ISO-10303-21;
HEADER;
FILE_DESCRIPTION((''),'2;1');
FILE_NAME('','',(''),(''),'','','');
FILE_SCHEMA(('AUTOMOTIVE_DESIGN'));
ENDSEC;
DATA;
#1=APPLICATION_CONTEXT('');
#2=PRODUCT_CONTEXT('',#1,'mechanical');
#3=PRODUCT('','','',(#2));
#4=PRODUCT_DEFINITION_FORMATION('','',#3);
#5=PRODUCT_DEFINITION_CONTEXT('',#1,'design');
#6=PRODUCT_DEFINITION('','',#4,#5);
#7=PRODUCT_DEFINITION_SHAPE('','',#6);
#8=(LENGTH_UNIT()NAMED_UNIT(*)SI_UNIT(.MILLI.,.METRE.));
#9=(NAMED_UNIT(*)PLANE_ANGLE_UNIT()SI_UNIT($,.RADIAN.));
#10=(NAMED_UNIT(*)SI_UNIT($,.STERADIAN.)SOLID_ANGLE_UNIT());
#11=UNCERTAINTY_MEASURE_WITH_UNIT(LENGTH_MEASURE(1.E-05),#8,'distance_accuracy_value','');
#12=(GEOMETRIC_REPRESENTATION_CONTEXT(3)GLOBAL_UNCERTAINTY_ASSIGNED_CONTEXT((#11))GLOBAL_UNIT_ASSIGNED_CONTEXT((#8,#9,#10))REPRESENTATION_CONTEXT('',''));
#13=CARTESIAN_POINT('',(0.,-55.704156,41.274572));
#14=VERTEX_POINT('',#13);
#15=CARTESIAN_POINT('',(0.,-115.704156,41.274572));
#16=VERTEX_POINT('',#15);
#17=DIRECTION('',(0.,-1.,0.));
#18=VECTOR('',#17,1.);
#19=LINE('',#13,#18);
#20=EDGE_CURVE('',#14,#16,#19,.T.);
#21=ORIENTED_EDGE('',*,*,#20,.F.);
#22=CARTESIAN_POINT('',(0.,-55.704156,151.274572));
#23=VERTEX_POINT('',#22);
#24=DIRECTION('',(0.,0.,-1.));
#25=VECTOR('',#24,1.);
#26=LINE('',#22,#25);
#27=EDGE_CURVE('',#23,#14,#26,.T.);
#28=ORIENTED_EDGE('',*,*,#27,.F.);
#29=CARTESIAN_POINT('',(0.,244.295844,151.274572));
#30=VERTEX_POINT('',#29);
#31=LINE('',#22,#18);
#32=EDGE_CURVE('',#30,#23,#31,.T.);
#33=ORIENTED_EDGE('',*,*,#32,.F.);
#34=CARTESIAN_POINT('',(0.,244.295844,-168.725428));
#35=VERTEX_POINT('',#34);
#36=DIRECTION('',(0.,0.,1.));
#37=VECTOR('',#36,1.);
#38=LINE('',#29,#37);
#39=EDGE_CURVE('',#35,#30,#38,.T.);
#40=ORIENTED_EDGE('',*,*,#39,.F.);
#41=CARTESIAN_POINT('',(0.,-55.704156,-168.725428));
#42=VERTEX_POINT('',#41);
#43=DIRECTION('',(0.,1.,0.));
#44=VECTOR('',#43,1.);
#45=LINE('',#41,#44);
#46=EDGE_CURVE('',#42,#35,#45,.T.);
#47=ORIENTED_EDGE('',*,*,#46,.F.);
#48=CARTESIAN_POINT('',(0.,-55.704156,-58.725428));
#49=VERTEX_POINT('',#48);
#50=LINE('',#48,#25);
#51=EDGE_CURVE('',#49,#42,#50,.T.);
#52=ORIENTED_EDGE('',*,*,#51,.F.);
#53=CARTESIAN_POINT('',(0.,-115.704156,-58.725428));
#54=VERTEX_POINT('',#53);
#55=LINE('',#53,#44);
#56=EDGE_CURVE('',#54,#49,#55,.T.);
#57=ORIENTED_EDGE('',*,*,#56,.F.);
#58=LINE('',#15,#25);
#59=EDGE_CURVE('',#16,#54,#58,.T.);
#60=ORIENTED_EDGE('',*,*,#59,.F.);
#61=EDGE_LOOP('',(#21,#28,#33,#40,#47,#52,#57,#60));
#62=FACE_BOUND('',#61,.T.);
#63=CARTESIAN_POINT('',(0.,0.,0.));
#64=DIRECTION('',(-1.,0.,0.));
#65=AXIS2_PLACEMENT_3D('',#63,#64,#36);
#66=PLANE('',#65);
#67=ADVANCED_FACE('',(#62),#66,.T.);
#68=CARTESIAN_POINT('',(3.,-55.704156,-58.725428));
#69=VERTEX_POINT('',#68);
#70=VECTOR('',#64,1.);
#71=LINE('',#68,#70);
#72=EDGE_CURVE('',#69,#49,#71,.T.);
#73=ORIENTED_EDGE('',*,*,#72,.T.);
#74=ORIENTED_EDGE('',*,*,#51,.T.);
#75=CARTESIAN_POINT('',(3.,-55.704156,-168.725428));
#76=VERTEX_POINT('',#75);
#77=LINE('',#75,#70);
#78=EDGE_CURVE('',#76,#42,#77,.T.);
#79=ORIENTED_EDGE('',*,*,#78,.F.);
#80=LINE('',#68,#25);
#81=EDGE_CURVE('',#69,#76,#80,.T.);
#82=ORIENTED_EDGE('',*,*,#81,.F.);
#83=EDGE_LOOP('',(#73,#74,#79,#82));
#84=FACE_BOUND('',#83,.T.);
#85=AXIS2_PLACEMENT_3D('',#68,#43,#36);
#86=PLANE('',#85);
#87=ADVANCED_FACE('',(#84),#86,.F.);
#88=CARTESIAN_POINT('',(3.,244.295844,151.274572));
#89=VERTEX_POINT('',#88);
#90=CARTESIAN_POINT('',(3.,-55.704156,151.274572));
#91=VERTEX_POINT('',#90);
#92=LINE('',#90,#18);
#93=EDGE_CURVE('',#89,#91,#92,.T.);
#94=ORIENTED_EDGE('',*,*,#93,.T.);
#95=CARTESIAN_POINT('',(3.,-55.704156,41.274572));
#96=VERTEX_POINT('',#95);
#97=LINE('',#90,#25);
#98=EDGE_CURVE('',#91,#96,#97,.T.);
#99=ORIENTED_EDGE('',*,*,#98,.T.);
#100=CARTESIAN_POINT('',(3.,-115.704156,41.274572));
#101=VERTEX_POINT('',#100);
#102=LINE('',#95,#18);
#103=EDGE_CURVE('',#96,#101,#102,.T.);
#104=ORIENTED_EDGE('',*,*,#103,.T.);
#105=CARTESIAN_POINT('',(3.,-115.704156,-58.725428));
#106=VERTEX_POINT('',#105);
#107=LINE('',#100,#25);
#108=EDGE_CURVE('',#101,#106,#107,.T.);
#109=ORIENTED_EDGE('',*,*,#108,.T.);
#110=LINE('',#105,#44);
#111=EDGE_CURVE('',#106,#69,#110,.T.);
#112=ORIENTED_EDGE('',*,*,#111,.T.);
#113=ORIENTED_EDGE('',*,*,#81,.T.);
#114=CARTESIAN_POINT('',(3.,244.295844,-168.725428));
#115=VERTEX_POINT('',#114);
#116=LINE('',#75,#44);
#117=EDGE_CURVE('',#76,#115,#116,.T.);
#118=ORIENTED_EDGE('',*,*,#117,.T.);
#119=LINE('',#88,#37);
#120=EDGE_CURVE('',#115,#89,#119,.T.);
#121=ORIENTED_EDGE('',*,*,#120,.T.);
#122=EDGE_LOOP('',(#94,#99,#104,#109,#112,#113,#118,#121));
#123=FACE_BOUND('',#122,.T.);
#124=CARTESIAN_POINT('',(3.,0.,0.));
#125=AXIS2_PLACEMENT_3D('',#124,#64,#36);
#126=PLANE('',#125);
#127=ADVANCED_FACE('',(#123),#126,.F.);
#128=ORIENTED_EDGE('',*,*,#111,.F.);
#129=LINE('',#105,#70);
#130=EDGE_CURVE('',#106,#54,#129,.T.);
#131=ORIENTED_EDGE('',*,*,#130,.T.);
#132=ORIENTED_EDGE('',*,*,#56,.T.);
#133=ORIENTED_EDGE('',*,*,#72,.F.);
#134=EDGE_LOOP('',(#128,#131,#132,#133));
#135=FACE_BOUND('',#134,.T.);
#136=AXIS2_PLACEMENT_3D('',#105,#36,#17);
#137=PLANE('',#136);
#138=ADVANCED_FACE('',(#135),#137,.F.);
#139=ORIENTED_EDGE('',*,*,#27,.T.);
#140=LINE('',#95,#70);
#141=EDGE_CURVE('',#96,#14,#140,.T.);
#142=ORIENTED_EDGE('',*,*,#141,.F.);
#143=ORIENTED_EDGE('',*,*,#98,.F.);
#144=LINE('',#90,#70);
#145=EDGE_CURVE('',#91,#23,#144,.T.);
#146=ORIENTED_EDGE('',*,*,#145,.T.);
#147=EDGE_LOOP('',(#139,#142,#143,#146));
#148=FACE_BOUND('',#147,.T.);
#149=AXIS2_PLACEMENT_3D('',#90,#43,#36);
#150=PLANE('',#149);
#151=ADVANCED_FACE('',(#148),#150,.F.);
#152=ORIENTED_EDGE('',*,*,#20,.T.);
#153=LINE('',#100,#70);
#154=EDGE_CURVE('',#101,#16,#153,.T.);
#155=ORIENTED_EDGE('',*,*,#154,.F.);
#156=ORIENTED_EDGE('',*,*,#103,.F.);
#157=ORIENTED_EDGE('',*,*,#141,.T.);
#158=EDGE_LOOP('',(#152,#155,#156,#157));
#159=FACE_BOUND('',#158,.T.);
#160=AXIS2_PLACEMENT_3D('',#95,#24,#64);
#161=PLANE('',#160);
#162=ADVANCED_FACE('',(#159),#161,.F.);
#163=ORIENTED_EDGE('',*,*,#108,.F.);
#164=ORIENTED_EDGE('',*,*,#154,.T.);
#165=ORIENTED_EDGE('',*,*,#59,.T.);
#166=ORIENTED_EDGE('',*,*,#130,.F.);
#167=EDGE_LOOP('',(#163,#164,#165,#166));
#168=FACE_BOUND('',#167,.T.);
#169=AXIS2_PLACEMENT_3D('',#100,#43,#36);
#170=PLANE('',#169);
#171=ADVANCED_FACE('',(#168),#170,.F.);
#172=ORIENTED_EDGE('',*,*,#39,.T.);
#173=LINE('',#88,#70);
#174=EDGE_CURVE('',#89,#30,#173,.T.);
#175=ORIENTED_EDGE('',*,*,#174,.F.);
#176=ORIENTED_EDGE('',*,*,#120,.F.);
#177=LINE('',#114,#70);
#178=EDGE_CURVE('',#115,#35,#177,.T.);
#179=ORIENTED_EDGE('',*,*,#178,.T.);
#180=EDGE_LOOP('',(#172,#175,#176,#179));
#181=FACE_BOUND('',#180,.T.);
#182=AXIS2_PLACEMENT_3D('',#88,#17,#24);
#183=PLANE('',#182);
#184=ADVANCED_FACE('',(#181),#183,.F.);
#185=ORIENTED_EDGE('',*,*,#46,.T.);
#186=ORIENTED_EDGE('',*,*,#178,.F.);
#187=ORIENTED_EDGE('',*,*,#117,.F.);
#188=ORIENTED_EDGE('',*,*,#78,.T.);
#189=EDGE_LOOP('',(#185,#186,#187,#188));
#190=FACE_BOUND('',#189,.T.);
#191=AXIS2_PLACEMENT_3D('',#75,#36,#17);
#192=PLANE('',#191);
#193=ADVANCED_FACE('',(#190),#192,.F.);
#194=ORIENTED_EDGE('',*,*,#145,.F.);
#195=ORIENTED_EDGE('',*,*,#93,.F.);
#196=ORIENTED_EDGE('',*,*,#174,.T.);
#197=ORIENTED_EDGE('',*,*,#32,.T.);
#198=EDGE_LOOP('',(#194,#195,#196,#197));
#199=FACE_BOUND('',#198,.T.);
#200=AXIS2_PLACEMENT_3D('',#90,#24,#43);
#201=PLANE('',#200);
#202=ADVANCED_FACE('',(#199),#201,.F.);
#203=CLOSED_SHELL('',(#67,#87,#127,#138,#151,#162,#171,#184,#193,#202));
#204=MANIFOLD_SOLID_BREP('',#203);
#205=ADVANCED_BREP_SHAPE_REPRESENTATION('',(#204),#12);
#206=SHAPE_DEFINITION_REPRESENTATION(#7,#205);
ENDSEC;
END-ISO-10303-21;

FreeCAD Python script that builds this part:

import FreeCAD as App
import Part
import Sketcher

V = App.Vector
Q = App.Units.Quantity

doc = App.newDocument("Part")
params = doc.addObject("Spreadsheet::Sheet", "Params")
for row, (alias, value) in enumerate([
    ("sketch1_width", "60 mm"),
    ("sketch1_width2", "300 mm"),
    ("sketch1_height", "110 mm"),
    ("sketch1_height2", "100 mm"),
    ("pad1_length", "3 mm"),
], start=1):
    params.set(f"A{row}", alias)
    params.set(f"B{row}", "=" + value)
    params.setAlias(f"B{row}", alias)

body = doc.addObject("PartDesign::Body", "Body")

sketch1 = body.newObject("Sketcher::SketchObject", "Sketch")
sketch1.AttachmentSupport = (doc.getObject("YZ_Plane"), [""])
sketch1.MapMode = "FlatFace"
sketch1.addGeometry(Part.LineSegment(V(-55.704156, 151.274572, 0), V(-55.704156, 41.274572, 0)), False)
sketch1.addGeometry(Part.LineSegment(V(-55.704156, 41.274572, 0), V(-115.704156, 41.274572, 0)), False)
sketch1.addGeometry(Part.LineSegment(V(-115.704156, 41.274572, 0), V(-115.704156, -58.725428, 0)), False)
sketch1.addGeometry(Part.LineSegment(V(-115.704156, -58.725428, 0), V(-55.704156, -58.725428, 0)), False)
sketch1.addGeometry(Part.LineSegment(V(-55.704156, -58.725428, 0), V(-55.704156, -168.725428, 0)), False)
sketch1.addGeometry(Part.LineSegment(V(-55.704156, -168.725428, 0), V(244.295844, -168.725428, 0)), False)
sketch1.addGeometry(Part.LineSegment(V(244.295844, -168.725428, 0), V(244.295844, 151.274572, 0)), False)
sketch1.addGeometry(Part.LineSegment(V(244.295844, 151.274572, 0), V(-55.704156, 151.274572, 0)), False)
sketch1.addConstraint(Sketcher.Constraint("Coincident", 0, 2, 1, 1))
sketch1.addConstraint(Sketcher.Constraint("Coincident", 1, 2, 2, 1))
sketch1.addConstraint(Sketcher.Constraint("Coincident", 2, 2, 3, 1))
sketch1.addConstraint(Sketcher.Constraint("Coincident", 3, 2, 4, 1))
sketch1.addConstraint(Sketcher.Constraint("Coincident", 4, 2, 5, 1))
sketch1.addConstraint(Sketcher.Constraint("Coincident", 5, 2, 6, 1))
sketch1.addConstraint(Sketcher.Constraint("Coincident", 6, 2, 7, 1))
sketch1.addConstraint(Sketcher.Constraint("Coincident", 7, 2, 0, 1))
sketch1.addConstraint(Sketcher.Constraint("Vertical", 0))
sketch1.addConstraint(Sketcher.Constraint("Horizontal", 1))
sketch1.addConstraint(Sketcher.Constraint("Vertical", 2))
sketch1.addConstraint(Sketcher.Constraint("Horizontal", 3))
sketch1.addConstraint(Sketcher.Constraint("Vertical", 4))
sketch1.addConstraint(Sketcher.Constraint("Horizontal", 5))
sketch1.addConstraint(Sketcher.Constraint("Vertical", 6))
sketch1.addConstraint(Sketcher.Constraint("Horizontal", 7))
sketch1.addConstraint(Sketcher.Constraint("Vertical", 0, 2, 3, 2))
sketch1.addConstraint(Sketcher.Constraint("Equal", 0, 4))
sketch1.addConstraint(Sketcher.Constraint("DistanceX", 1, 2, 1, 1, Q("60 mm")))
sketch1.addConstraint(Sketcher.Constraint("DistanceX", 5, 1, 5, 2, Q("300 mm")))
sketch1.addConstraint(Sketcher.Constraint("DistanceY", 0, 2, 0, 1, Q("110 mm")))
sketch1.addConstraint(Sketcher.Constraint("DistanceY", 2, 2, 2, 1, Q("100 mm")))
sketch1.addConstraint(Sketcher.Constraint("DistanceY", -1, 1, 0, 2, Q("41.274572 mm")))
sketch1.addConstraint(Sketcher.Constraint("DistanceX", 0, 2, -1, 1, Q("55.704156 mm")))
sketch1.setExpression("Constraints[18]", "Params.sketch1_width")
sketch1.setExpression("Constraints[19]", "Params.sketch1_width2")
sketch1.setExpression("Constraints[20]", "Params.sketch1_height")
sketch1.setExpression("Constraints[21]", "Params.sketch1_height2")
pad1 = body.newObject("PartDesign::Pad", "Pad")
pad1.Profile = sketch1
pad1.setExpression("Length", "Params.pad1_length")

doc.recompute()
